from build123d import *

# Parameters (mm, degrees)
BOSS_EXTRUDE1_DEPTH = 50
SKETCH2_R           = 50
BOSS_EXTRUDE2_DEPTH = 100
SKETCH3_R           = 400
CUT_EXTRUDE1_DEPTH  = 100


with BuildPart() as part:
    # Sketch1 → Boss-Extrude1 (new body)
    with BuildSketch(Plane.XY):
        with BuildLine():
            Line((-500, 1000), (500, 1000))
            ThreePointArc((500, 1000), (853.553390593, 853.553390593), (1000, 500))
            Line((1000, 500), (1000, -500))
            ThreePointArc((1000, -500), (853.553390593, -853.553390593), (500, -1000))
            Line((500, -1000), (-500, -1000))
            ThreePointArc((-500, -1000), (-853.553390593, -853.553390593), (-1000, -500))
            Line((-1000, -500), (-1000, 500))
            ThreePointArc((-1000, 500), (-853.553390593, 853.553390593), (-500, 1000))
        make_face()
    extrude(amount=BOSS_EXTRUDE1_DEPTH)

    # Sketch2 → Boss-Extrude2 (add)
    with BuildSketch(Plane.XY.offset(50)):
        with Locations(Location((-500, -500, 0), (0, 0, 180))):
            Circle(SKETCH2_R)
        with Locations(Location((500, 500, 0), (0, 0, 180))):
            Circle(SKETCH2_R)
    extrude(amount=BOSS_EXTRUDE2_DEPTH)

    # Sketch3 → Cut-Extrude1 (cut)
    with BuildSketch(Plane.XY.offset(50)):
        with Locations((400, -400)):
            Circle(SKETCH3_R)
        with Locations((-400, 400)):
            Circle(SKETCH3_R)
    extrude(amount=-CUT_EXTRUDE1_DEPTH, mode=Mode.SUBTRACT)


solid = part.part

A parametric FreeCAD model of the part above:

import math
import FreeCAD as App
import Part
import Sketcher

doc = App.newDocument("Part")
body = doc.addObject("PartDesign::Body", "Body")

# Sketch on XY plane
sketch1 = body.newObject("Sketcher::SketchObject", "Sketch")
sketch1.AttachmentSupport = (doc.getObject("XY_Plane"), [""])
sketch1.MapMode = "FlatFace"
sketch1.addGeometry([
    Part.LineSegment(App.Vector(500, 1000, 0), App.Vector(-500, 1000, 0)),  # 0
    Part.ArcOfCircle(Part.Circle(App.Vector(-500, 500, 0), App.Vector(0, 0, 1), 500), math.radians(90), math.radians(180)),  # 1
    Part.LineSegment(App.Vector(-1000, 500, 0), App.Vector(-1000, -500, 0)),  # 2
    Part.ArcOfCircle(Part.Circle(App.Vector(-500, -500, 0), App.Vector(0, 0, 1), 500), math.radians(-180), math.radians(-90)),  # 3
    Part.LineSegment(App.Vector(-500, -1000, 0), App.Vector(500, -1000, 0)),  # 4
    Part.ArcOfCircle(Part.Circle(App.Vector(500, -500, 0), App.Vector(0, 0, 1), 500), math.radians(-90), math.radians(0)),  # 5
    Part.LineSegment(App.Vector(1000, -500, 0), App.Vector(1000, 500, 0)),  # 6
    Part.ArcOfCircle(Part.Circle(App.Vector(500, 500, 0), App.Vector(0, 0, 1), 500), math.radians(0), math.radians(90)),  # 7
], False)
sketch1.addConstraint([
    Sketcher.Constraint("Tangent", 0, 2, 1, 1),
    Sketcher.Constraint("Tangent", 1, 2, 2, 1),
    Sketcher.Constraint("Tangent", 2, 2, 3, 1),
    Sketcher.Constraint("Tangent", 3, 2, 4, 1),
    Sketcher.Constraint("Tangent", 4, 2, 5, 1),
    Sketcher.Constraint("Tangent", 5, 2, 6, 1),
    Sketcher.Constraint("Tangent", 6, 2, 7, 1),
    Sketcher.Constraint("Tangent", 7, 2, 0, 1),
    Sketcher.Constraint("Horizontal", 0),
    Sketcher.Constraint("Vertical", 2),
    Sketcher.Constraint("Horizontal", 4),
    Sketcher.Constraint("Vertical", 6),
    Sketcher.Constraint("Equal", 1, 3),
    Sketcher.Constraint("Equal", 3, 5),
    Sketcher.Constraint("Equal", 5, 7),
    Sketcher.Constraint("Symmetric", 1, 3, 5, 3, -1, 1),
    Sketcher.Constraint("Equal", 4, 2),
    Sketcher.Constraint("Radius", 1, 500.0),
    Sketcher.Constraint("DistanceX", 0, 2, 0, 1, 1000.0),
])
pad1 = body.newObject("PartDesign::Pad", "Pad")
pad1.Profile = sketch1
pad1.Length = 50

# Sketch on XY plane
sketch2 = body.newObject("Sketcher::SketchObject", "Sketch001")
sketch2.AttachmentSupport = (doc.getObject("XY_Plane"), [""])
sketch2.MapMode = "FlatFace"
sketch2.AttachmentOffset = App.Placement(App.Vector(0, 0, 50), App.Rotation())
sketch2.addGeometry([
    Part.Circle(App.Vector(-500, -500, 0), App.Vector(0, 0, 1), 50),
    Part.Circle(App.Vector(500, 500, 0), App.Vector(0, 0, 1), 50),
], False)
sketch2.addConstraint([
    Sketcher.Constraint("Equal", 0, 1),
    Sketcher.Constraint("Symmetric", 0, 3, 1, 3, -1, 1),
    Sketcher.Constraint("Diameter", 0, 100.0),
    Sketcher.Constraint("DistanceX", 0, 3, -1, 1, 500.0),
    Sketcher.Constraint("DistanceY", 0, 3, -1, 1, 500.0),
])
pad2 = body.newObject("PartDesign::Pad", "Pad001")
pad2.Profile = sketch2
pad2.Length = 100

# Sketch on XY plane
sketch3 = body.newObject("Sketcher::SketchObject", "Sketch002")
sketch3.AttachmentSupport = (doc.getObject("XY_Plane"), [""])
sketch3.MapMode = "FlatFace"
sketch3.AttachmentOffset = App.Placement(App.Vector(0, 0, 50), App.Rotation())
sketch3.addGeometry([
    Part.Circle(App.Vector(400, -400, 0), App.Vector(0, 0, 1), 400),
    Part.Circle(App.Vector(-400, 400, 0), App.Vector(0, 0, 1), 400),
], False)
sketch3.addConstraint([
    Sketcher.Constraint("Equal", 0, 1),
    Sketcher.Constraint("Symmetric", 0, 3, 1, 3, -1, 1),
    Sketcher.Constraint("Diameter", 0, 800.0),
    Sketcher.Constraint("DistanceX", -1, 1, 0, 3, 400.0),
    Sketcher.Constraint("DistanceY", 0, 3, -1, 1, 400.0),
])
pocket1 = body.newObject("PartDesign::Pocket", "Pocket")
pocket1.Profile = sketch3
pocket1.Length = 100

doc.recompute()
